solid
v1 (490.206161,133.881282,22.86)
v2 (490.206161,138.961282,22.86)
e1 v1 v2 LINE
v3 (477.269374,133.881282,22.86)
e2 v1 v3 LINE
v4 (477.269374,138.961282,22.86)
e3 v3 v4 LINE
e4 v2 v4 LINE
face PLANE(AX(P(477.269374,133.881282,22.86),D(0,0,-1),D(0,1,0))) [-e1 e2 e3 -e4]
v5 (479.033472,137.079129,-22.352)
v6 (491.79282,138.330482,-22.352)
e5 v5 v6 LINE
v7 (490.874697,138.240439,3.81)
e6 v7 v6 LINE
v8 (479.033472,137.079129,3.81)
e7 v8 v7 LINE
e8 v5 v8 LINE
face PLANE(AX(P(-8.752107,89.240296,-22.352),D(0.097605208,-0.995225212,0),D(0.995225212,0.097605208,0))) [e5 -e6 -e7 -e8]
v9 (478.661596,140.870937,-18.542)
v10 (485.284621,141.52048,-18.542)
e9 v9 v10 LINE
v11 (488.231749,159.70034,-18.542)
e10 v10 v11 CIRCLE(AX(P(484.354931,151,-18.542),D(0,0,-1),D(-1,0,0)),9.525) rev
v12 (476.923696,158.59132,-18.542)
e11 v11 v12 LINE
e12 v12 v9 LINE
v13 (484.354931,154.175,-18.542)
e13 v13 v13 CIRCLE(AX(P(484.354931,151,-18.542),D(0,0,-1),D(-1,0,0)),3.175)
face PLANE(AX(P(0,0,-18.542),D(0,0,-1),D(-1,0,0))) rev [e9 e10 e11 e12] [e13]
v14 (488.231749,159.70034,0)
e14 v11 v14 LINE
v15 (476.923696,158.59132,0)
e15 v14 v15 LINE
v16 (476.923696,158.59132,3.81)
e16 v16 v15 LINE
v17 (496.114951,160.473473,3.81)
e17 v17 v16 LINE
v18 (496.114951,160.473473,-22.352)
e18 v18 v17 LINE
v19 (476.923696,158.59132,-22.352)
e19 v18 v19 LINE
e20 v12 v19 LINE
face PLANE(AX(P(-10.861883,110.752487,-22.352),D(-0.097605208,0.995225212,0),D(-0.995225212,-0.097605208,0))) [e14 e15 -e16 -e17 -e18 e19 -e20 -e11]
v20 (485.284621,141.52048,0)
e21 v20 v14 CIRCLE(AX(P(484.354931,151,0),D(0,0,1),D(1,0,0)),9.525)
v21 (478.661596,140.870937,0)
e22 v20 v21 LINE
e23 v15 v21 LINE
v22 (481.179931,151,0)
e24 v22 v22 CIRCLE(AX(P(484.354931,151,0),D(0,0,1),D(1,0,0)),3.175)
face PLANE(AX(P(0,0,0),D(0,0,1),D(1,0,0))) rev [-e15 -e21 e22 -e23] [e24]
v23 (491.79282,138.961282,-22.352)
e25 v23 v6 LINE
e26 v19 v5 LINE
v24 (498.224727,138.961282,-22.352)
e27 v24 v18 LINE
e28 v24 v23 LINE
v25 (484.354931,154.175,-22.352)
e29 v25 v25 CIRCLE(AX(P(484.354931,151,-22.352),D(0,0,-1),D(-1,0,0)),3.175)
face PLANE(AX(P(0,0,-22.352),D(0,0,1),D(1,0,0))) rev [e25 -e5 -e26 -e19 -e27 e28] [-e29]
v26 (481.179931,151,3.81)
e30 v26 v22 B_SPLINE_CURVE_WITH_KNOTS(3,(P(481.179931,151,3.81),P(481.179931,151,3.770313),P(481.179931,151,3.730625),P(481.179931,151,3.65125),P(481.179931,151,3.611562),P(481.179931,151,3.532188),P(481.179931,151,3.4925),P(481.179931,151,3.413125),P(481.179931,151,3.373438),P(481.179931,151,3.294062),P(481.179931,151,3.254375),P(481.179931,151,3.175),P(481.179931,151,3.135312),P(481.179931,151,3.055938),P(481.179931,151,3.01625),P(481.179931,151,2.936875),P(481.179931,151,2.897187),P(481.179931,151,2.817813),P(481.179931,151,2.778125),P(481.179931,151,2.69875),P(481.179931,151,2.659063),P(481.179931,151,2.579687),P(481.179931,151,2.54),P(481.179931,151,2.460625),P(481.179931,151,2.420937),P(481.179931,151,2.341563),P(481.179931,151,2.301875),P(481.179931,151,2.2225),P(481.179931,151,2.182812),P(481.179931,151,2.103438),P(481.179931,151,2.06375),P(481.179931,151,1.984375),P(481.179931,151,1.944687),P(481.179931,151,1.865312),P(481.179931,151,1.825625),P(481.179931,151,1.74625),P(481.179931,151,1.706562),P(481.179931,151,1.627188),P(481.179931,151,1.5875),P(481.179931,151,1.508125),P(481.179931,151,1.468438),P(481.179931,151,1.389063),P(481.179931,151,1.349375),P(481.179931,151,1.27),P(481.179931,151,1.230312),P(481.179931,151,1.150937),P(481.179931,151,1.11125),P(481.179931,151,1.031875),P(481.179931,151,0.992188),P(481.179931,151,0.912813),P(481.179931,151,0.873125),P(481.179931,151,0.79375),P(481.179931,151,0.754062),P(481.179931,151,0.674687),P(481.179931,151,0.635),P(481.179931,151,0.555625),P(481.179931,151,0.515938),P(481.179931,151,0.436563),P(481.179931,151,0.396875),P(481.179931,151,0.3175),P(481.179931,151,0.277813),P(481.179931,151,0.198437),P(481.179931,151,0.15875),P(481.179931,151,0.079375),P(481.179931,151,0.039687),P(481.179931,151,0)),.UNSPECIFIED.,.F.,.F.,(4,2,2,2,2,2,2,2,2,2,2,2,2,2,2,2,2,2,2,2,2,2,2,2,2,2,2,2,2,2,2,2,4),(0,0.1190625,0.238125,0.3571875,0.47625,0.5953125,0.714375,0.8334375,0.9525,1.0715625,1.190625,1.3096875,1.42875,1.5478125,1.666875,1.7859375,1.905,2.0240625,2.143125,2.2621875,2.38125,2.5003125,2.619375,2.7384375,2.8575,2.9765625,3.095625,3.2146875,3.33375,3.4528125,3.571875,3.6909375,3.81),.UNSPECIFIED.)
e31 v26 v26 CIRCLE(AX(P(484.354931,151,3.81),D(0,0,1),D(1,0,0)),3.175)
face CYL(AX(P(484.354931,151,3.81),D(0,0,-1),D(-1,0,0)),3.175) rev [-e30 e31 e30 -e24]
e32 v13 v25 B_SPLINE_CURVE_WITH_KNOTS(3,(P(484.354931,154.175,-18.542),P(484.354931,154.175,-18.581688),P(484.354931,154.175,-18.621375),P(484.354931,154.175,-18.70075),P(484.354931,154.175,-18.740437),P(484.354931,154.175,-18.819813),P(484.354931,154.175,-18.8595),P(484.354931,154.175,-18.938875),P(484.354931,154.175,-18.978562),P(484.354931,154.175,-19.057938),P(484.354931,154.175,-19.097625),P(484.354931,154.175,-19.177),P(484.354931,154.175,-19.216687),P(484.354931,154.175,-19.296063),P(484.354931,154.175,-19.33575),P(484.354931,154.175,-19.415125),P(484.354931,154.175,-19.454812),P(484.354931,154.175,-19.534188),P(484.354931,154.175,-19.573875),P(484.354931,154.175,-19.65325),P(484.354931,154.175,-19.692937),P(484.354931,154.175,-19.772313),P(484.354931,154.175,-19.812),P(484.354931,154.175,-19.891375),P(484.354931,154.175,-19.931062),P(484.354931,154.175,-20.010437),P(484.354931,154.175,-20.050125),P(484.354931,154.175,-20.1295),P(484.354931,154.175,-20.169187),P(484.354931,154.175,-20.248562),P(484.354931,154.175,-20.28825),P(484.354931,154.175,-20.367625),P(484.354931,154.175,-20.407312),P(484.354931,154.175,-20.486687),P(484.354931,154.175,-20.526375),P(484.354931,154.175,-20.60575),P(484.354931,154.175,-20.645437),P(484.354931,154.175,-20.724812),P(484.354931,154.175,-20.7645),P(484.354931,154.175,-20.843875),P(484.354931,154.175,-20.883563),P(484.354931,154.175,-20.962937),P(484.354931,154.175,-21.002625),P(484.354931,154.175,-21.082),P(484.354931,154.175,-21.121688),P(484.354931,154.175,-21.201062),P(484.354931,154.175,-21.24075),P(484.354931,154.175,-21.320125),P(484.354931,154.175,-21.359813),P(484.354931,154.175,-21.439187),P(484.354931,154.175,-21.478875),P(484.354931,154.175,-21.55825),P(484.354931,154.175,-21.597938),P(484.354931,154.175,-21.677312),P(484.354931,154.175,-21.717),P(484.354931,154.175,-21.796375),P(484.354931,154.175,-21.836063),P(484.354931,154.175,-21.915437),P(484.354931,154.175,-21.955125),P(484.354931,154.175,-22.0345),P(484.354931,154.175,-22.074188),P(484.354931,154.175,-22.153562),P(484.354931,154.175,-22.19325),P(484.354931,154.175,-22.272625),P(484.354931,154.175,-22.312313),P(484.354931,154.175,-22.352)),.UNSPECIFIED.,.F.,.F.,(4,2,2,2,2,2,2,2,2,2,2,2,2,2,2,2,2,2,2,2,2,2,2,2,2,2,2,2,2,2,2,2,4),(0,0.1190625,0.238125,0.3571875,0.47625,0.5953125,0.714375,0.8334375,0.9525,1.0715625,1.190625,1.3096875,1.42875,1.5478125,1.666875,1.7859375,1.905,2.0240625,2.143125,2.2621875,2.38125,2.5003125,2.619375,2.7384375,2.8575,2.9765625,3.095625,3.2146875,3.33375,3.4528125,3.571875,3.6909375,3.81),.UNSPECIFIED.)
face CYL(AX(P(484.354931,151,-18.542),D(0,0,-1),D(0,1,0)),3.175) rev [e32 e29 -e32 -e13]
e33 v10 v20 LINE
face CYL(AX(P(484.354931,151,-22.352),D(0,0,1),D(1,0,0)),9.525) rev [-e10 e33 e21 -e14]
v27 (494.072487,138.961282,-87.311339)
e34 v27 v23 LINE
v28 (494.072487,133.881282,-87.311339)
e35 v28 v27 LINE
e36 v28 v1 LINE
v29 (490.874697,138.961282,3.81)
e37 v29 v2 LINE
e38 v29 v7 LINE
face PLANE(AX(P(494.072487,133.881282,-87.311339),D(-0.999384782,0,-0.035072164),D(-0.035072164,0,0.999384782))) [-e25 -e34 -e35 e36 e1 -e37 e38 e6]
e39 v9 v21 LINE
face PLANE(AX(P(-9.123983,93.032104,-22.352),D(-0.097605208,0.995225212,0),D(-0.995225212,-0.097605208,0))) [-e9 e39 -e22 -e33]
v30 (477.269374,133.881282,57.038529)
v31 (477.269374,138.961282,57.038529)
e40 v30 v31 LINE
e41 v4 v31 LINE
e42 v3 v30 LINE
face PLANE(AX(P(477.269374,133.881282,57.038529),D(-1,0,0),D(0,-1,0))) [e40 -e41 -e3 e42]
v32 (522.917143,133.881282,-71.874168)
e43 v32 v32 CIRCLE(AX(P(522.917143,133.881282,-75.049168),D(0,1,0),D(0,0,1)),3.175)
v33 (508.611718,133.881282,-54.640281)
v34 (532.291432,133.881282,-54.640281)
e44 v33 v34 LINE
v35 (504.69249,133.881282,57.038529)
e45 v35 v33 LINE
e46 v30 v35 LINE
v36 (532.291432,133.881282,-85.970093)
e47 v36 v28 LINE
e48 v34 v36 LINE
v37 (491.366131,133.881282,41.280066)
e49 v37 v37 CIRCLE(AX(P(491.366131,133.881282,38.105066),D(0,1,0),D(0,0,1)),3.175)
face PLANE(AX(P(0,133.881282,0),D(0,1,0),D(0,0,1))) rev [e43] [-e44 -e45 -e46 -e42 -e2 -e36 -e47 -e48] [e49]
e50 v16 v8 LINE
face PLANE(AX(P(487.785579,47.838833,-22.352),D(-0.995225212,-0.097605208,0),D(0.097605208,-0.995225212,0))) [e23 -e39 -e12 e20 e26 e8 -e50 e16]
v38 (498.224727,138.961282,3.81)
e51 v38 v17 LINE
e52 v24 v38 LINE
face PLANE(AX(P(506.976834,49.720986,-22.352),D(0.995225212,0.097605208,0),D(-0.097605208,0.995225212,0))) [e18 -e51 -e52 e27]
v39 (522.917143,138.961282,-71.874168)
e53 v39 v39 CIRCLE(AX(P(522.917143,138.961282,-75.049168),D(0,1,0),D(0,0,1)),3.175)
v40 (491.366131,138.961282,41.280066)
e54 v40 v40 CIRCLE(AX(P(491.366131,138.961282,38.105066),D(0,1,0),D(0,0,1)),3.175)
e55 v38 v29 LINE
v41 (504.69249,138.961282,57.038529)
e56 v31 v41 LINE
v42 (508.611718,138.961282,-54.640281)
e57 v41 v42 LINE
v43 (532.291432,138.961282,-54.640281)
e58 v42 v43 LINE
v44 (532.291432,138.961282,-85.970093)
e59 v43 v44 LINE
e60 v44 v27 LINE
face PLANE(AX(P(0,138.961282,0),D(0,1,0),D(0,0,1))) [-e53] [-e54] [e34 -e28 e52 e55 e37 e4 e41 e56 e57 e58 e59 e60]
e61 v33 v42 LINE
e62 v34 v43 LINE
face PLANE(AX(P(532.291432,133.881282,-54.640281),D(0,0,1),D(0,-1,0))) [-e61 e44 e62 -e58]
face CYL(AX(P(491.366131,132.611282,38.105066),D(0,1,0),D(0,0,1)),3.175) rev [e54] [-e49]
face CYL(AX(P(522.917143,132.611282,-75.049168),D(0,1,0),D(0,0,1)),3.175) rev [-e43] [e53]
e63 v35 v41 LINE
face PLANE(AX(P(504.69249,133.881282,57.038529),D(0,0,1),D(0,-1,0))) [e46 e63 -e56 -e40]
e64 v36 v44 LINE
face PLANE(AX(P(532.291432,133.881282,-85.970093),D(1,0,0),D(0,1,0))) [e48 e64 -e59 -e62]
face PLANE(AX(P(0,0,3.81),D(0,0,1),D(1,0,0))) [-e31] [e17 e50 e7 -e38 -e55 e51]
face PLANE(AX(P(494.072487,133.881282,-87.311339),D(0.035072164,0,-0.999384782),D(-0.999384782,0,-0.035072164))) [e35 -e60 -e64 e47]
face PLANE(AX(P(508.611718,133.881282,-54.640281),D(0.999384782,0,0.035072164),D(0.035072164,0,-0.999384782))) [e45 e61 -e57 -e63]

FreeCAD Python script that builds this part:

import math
import FreeCAD as App
import Part
import Sketcher
Q = App.Units.Quantity

doc = App.newDocument("Part")
body = doc.addObject("PartDesign::Body", "Body")

# Sketch on XY plane
sketch1 = body.newObject("Sketcher::SketchObject", "Sketch")
sketch1.AttachmentSupport = (doc.getObject("XY_Plane"), [""])
sketch1.MapMode = "FlatFace"
sketch1.addGeometry([
    Part.LineSegment(App.Vector(485.3, 141.5, 0), App.Vector(478.7, 140.9, 0)),  # 0
    Part.LineSegment(App.Vector(478.7, 140.9, 0), App.Vector(479, 137.1, 0)),  # 1
    Part.LineSegment(App.Vector(479, 137.1, 0), App.Vector(498.2, 139, 0)),  # 2
    Part.LineSegment(App.Vector(498.2, 139, 0), App.Vector(496.1, 160.5, 0)),  # 3
    Part.LineSegment(App.Vector(496.1, 160.5, 0), App.Vector(488.2, 159.7, 0)),  # 4
    Part.ArcOfCircle(Part.Circle(App.Vector(484.4, 151, 0), App.Vector(0, 0, 1), 9.5), math.radians(54.37), math.radians(65.98)),  # 5
    Part.ArcOfCircle(Part.Circle(App.Vector(484.4, 151, 0), App.Vector(0, 0, 1), 9.5), math.radians(-43), math.radians(54)),  # 6
    Part.ArcOfCircle(Part.Circle(App.Vector(484.4, 151, 0), App.Vector(0, 0, 1), 9.5), math.radians(-84), math.radians(-43)),  # 7
], False)
sketch1.addConstraint([
    Sketcher.Constraint("Coincident", 0, 2, 1, 1),
    Sketcher.Constraint("Coincident", 1, 2, 2, 1),
    Sketcher.Constraint("Coincident", 2, 2, 3, 1),
    Sketcher.Constraint("Coincident", 3, 2, 4, 1),
    Sketcher.Constraint("Coincident", 4, 2, 5, 2),
    Sketcher.Constraint("Tangent", 5, 1, 6, 2),
    Sketcher.Constraint("Tangent", 6, 1, 7, 2),
    Sketcher.Constraint("Tangent", 7, 1, 0, 1),
    Sketcher.Constraint("Coincident", 7, 3, 5, 3),
    Sketcher.Constraint("Perpendicular", 0, 1),
    Sketcher.Constraint("Perpendicular", 1, 2),
    Sketcher.Constraint("Perpendicular", 2, 3),
    Sketcher.Constraint("Perpendicular", 3, 4),
    Sketcher.Constraint("Radius", 5, Q("0.375 in")),
    Sketcher.Constraint("Distance", 1, Q("0.15 in")),
    Sketcher.Constraint("Distance", 0, Q("0.262 in")),
    Sketcher.Constraint("Distance", 3, Q("0.851 in")),
    Sketcher.Constraint("DistanceY", -1, 1, 0, 2, Q("5.5460999 in")),
    Sketcher.Constraint("DistanceY", -1, 1, 5, 3, Q("151 mm")),
    Sketcher.Constraint("Distance", 2, Q("19.283329 mm")),
    Sketcher.Constraint("DistanceX", -1, 1, 5, 3, Q("484.354931 mm")),
    Sketcher.Constraint("DistanceX", 6, 1, 2, 2, Q("6.922119 mm")),
    Sketcher.Constraint("DistanceX", -1, 1, 5, 1, Q("489.904355 mm")),
])
pad1 = body.newObject("PartDesign::Pad", "Pad")
pad1.Profile = sketch1
pad1.Length = Q("0.88 in")
pad1.Reversed = True

# Sketch on XY plane
sketch2 = body.newObject("Sketcher::SketchObject", "Sketch001")
sketch2.AttachmentSupport = (doc.getObject("XY_Plane"), [""])
sketch2.MapMode = "FlatFace"
sketch2.AttachmentOffset = App.Placement(App.Vector(0, 0, -0.73 * 25.4), App.Rotation())
sketch2.addGeometry([
    Part.LineSegment(App.Vector(478.7, 140.9, 0), App.Vector(476.9, 158.6, 0)),  # 0
    Part.LineSegment(App.Vector(476.9, 158.6, 0), App.Vector(488.2, 159.7, 0)),  # 1
    Part.ArcOfCircle(Part.Circle(App.Vector(484.4, 151, 0), App.Vector(0, 0, 1), 9.5), math.radians(-84), math.radians(66)),  # 2
    Part.LineSegment(App.Vector(485.3, 141.5, 0), App.Vector(478.7, 140.9, 0)),  # 3
    Part.Circle(App.Vector(484.4, 151, 0), App.Vector(0, 0, 1), 3.2),  # 4
], False)
sketch2.addConstraint([
    Sketcher.Constraint("Coincident", 0, 2, 1, 1),
    Sketcher.Constraint("Coincident", 1, 2, 2, 2),
    Sketcher.Constraint("Tangent", 2, 1, 3, 1),
    Sketcher.Constraint("Coincident", 3, 2, 0, 1),
    Sketcher.Constraint("Coincident", 4, 3, 2, 3),
    Sketcher.Constraint("Perpendicular", 0, 1),
    Sketcher.Constraint("Parallel", 1, 3),
    Sketcher.Constraint("Diameter", 4, Q("0.25 in")),
    Sketcher.Constraint("Radius", 2, Q("0.375 in")),
    Sketcher.Constraint("Distance", 0, Q("0.701 in")),
    Sketcher.Constraint("Distance", 3, Q("0.262 in")),
    Sketcher.Constraint("DistanceY", -1, 1, 3, 2, Q("5.5460999 in")),
    Sketcher.Constraint("DistanceY", -1, 1, 2, 3, Q("151 mm")),
    Sketcher.Constraint("DistanceX", -1, 1, 2, 3, Q("484.354931 mm")),
])
pad2 = body.newObject("PartDesign::Pad", "Pad001")
pad2.Profile = sketch2
pad2.Length = Q("0.15 in")
pad2.Reversed = True

# Sketch on XY plane
sketch3 = body.newObject("Sketcher::SketchObject", "Sketch002")
sketch3.AttachmentSupport = (doc.getObject("XY_Plane"), [""])
sketch3.MapMode = "FlatFace"
sketch3.AttachmentOffset = App.Placement(App.Vector(0, 0, 0.15 * 25.4), App.Rotation())
sketch3.addGeometry([
    Part.LineSegment(App.Vector(488.2, 159.7, 0), App.Vector(476.9, 158.6, 0)),  # 0
    Part.LineSegment(App.Vector(476.9, 158.6, 0), App.Vector(478.7, 140.9, 0)),  # 1
    Part.LineSegment(App.Vector(478.7, 140.9, 0), App.Vector(479, 137.1, 0)),  # 2
    Part.LineSegment(App.Vector(479, 137.1, 0), App.Vector(498.2, 139, 0)),  # 3
    Part.LineSegment(App.Vector(498.2, 139, 0), App.Vector(496.1, 160.5, 0)),  # 4
    Part.LineSegment(App.Vector(496.1, 160.5, 0), App.Vector(488.2, 159.7, 0)),  # 5
    Part.Circle(App.Vector(484.4, 151, 0), App.Vector(0, 0, 1), 3.2),  # 6
], False)
sketch3.addConstraint([
    Sketcher.Constraint("Coincident", 0, 2, 1, 1),
    Sketcher.Constraint("Coincident", 1, 2, 2, 1),
    Sketcher.Constraint("Coincident", 2, 2, 3, 1),
    Sketcher.Constraint("Coincident", 3, 2, 4, 1),
    Sketcher.Constraint("Coincident", 4, 2, 5, 1),
    Sketcher.Constraint("Coincident", 5, 2, 0, 1),
    Sketcher.Constraint("Perpendicular", 0, 1),
    Sketcher.Constraint("Parallel", 1, 2),
    Sketcher.Constraint("Perpendicular", 2, 3),
    Sketcher.Constraint("Perpendicular", 3, 4),
    Sketcher.Constraint("Perpendicular", 4, 5),
    Sketcher.Constraint("Diameter", 6, Q("0.25 in")),
    Sketcher.Constraint("Distance", 2, Q("0.15 in")),
    Sketcher.Constraint("Distance", 1, Q("0.701 in")),
    Sketcher.Constraint("DistanceY", -1, 1, 1, 2, Q("5.5460999 in")),
    Sketcher.Constraint("DistanceY", -1, 1, 6, 3, Q("151 mm")),
    Sketcher.Constraint("DistanceX", 0, 2, 1, 2, Q("1.7379 mm")),
    Sketcher.Constraint("Distance", 3, Q("19.283329 mm")),
    Sketcher.Constraint("DistanceX", -1, 1, 6, 3, Q("484.354931 mm")),
    Sketcher.Constraint("DistanceX", -1, 1, 4, 2, Q("496.114951 mm")),
    Sketcher.Constraint("DistanceX", -1, 1, 5, 2, Q("488.231749 mm")),
])
pad3 = body.newObject("PartDesign::Pad", "Pad002")
pad3.Profile = sketch3
pad3.Length = Q("0.15 in")
pad3.Reversed = True

# Sketch on XZ plane
sketch4 = body.newObject("Sketcher::SketchObject", "Sketch003")
sketch4.AttachmentSupport = (doc.getObject("XZ_Plane"), [""])
sketch4.MapMode = "FlatFace"
sketch4.AttachmentOffset = App.Placement(App.Vector(0, 0, -138.961282), App.Rotation())
sketch4.addGeometry([
    Part.LineSegment(App.Vector(532, -86, 0), App.Vector(494, -87, 0)),  # 0
    Part.LineSegment(App.Vector(494, -87, 0), App.Vector(490, 23, 0)),  # 1
    Part.LineSegment(App.Vector(490, 23, 0), App.Vector(477, 23, 0)),  # 2
    Part.LineSegment(App.Vector(477, 23, 0), App.Vector(477, 57, 0)),  # 3
    Part.LineSegment(App.Vector(477, 57, 0), App.Vector(505, 57, 0)),  # 4
    Part.LineSegment(App.Vector(505, 57, 0), App.Vector(509, -55, 0)),  # 5
    Part.LineSegment(App.Vector(509, -55, 0), App.Vector(532, -55, 0)),  # 6
    Part.LineSegment(App.Vector(532, -55, 0), App.Vector(532, -86, 0)),  # 7
], False)
sketch4.addConstraint([
    Sketcher.Constraint("Coincident", 0, 2, 1, 1),
    Sketcher.Constraint("Coincident", 1, 2, 2, 1),
    Sketcher.Constraint("Coincident", 2, 2, 3, 1),
    Sketcher.Constraint("Coincident", 3, 2, 4, 1),
    Sketcher.Constraint("Coincident", 4, 2, 5, 1),
    Sketcher.Constraint("Coincident", 5, 2, 6, 1),
    Sketcher.Constraint("Coincident", 6, 2, 7, 1),
    Sketcher.Constraint("Coincident", 7, 2, 0, 1),
    Sketcher.Constraint("Horizontal", 2),
    Sketcher.Constraint("Vertical", 3),
    Sketcher.Constraint("Horizontal", 4),
    Sketcher.Constraint("Horizontal", 6),
    Sketcher.Constraint("Vertical", 7),
    Sketcher.Constraint("Perpendicular", 0, 1),
    Sketcher.Constraint("Parallel", 1, 5),
    Sketcher.Constraint("DistanceY", -1, 1, 1, 2, Q("0.9 in")),
    Sketcher.Constraint("DistanceY", 3, 1, 3, 2, Q("34.178529 mm")),
    Sketcher.Constraint("Distance", 1, Q("110.23916 mm")),
    Sketcher.Constraint("Distance", 5, Q("111.747559 mm")),
    Sketcher.Constraint("DistanceX", 2, 2, 2, 1, Q("12.936787 mm")),
    Sketcher.Constraint("DistanceX", 4, 1, 4, 2, Q("27.423115 mm")),
    Sketcher.Constraint("DistanceX", 6, 1, 6, 2, Q("23.679714 mm")),
    Sketcher.Constraint("DistanceY", 7, 2, 7, 1, Q("31.329812 mm")),
    Sketcher.Constraint("DistanceX", -1, 1, 1, 2, Q("490.206161 mm")),
])
pad4 = body.newObject("PartDesign::Pad", "Pad003")
pad4.Profile = sketch4
pad4.Length = Q("0.2 in")

# Sketch on XZ plane
sketch5 = body.newObject("Sketcher::SketchObject", "Sketch004")
sketch5.AttachmentSupport = (doc.getObject("XZ_Plane"), [""])
sketch5.MapMode = "FlatFace"
sketch5.AttachmentOffset = App.Placement(App.Vector(0, 0, -138.961282), App.Rotation())
sketch5.addGeometry([
    Part.Circle(App.Vector(491.4, 38.1, 0), App.Vector(0, 0, 1), 3.2),
    Part.Circle(App.Vector(522.9, -75, 0), App.Vector(0, 0, 1), 3.2),
], False)
sketch5.addConstraint([
    Sketcher.Constraint("Equal", 0, 1),
    Sketcher.Constraint("Diameter", 0, Q("0.25 in")),
    Sketcher.Constraint("DistanceX", -1, 1, 0, 3, Q("491.366131 mm")),
    Sketcher.Constraint("DistanceY", -1, 1, 0, 3, Q("38.105066 mm")),
    Sketcher.Constraint("DistanceX", -1, 1, 1, 3, Q("522.917143 mm")),
    Sketcher.Constraint("DistanceY", 1, 3, -1, 1, Q("75.049168 mm")),
])
pocket1 = body.newObject("PartDesign::Pocket", "Pocket")
pocket1.Profile = sketch5
pocket1.Length = Q("0.25 in")
pocket1.Reversed = True

doc.recompute()
